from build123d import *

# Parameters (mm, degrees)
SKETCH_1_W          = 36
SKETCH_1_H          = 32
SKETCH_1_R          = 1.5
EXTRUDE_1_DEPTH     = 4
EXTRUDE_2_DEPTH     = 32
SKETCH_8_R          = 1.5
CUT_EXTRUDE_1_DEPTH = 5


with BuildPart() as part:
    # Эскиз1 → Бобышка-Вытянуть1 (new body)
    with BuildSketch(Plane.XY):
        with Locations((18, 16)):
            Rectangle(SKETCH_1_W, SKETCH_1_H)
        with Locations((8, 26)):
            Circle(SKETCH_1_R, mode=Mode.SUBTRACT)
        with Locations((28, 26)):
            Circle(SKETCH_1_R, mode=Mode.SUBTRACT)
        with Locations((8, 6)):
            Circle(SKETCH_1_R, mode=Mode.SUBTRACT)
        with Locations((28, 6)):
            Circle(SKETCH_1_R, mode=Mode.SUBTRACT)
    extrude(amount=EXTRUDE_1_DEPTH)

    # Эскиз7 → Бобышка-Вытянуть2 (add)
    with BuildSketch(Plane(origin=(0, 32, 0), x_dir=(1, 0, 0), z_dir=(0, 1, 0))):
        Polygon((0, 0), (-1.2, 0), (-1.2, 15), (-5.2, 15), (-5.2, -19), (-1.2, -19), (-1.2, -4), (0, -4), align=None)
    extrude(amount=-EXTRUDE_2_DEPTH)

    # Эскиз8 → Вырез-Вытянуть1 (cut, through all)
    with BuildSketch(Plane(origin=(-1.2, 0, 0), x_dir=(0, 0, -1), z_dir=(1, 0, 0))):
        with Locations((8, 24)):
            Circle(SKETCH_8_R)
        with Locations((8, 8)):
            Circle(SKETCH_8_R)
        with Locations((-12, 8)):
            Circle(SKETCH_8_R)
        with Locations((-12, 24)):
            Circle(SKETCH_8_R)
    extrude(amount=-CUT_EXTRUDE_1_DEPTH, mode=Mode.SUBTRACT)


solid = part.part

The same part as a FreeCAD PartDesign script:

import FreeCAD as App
import Part
import Sketcher

V = App.Vector
Q = App.Units.Quantity


def add_polygon(sketch, points):
    """Adds a closed chain of lines whose ends are joined by coincident constraints."""
    first, n = sketch.GeometryCount, len(points)
    for a, b in zip(points, points[1:] + points[:1]):
        sketch.addGeometry(Part.LineSegment(App.Vector(*a, 0), App.Vector(*b, 0)), False)
    for i in range(n):
        sketch.addConstraint(Sketcher.Constraint("Coincident", first + i, 2, first + (i + 1) % n, 1))

doc = App.newDocument("Part")
body = doc.addObject("PartDesign::Body", "Body")

# Sketch on XY plane
sketch1 = doc.addObject("Sketcher::SketchObject", "Sketch")
body.addObject(sketch1)
sketch1.AttachmentSupport = (doc.XY_Plane, [""])
sketch1.MapMode = "FlatFace"
add_polygon(sketch1, [(0, 32), (0, 0), (36, 0), (36, 32)])  # lines 0-3
sketch1.addGeometry(Part.Circle(V(8, 6, 0), V(0, 0, 1), 1.5), False)  # 4
sketch1.addGeometry(Part.Circle(V(28, 6, 0), V(0, 0, 1), 1.5), False)  # 5
sketch1.addGeometry(Part.Circle(V(8, 26, 0), V(0, 0, 1), 1.5), False)  # 6
sketch1.addGeometry(Part.Circle(V(28, 26, 0), V(0, 0, 1), 1.5), False)  # 7
sketch1.addConstraint([
    Sketcher.Constraint("Vertical", 0),
    Sketcher.Constraint("Horizontal", 1),
    Sketcher.Constraint("Vertical", 2),
    Sketcher.Constraint("Horizontal", 3),
    Sketcher.Constraint("Coincident", 0, 2, -1, 1),
    Sketcher.Constraint("Equal", 4, 5),
    Sketcher.Constraint("Equal", 5, 6),
    Sketcher.Constraint("Equal", 6, 7),
    Sketcher.Constraint("Horizontal", 4, 3, 5, 3),
    Sketcher.Constraint("Horizontal", 6, 3, 7, 3),
    Sketcher.Constraint("Vertical", 4, 3, 6, 3),
    Sketcher.Constraint("Vertical", 5, 3, 7, 3),
    Sketcher.Constraint("Diameter", 4, Q("3 mm")),
    Sketcher.Constraint("DistanceX", 1, 1, 1, 2, Q("36 mm")),
    Sketcher.Constraint("DistanceY", 0, 2, 0, 1, Q("32 mm")),
    Sketcher.Constraint("DistanceX", -1, 1, 4, 3, Q("8 mm")),
    Sketcher.Constraint("DistanceY", -1, 1, 4, 3, Q("6 mm")),
    Sketcher.Constraint("DistanceX", -1, 1, 5, 3, Q("28 mm")),
    Sketcher.Constraint("DistanceY", -1, 1, 6, 3, Q("26 mm")),
])
pad1 = doc.addObject("PartDesign::Pad", "Pad")
body.addObject(pad1)
pad1.Profile = sketch1
pad1.Length = 4

# Sketch on XZ plane
sketch2 = doc.addObject("Sketcher::SketchObject", "Sketch001")
body.addObject(sketch2)
sketch2.AttachmentSupport = (doc.XZ_Plane, [""])
sketch2.MapMode = "FlatFace"
sketch2.AttachmentOffset = App.Placement(V(0, 0, -32), App.Rotation())
add_polygon(sketch2, [(0, 0), (-1.2, 0), (-1.2, -15), (-5.2, -15), (-5.2, 19), (-1.2, 19), (-1.2, 4), (0, 4)])  # lines 0-7
sketch2.addConstraint([
    Sketcher.Constraint("Horizontal", 0),
    Sketcher.Constraint("Vertical", 1),
    Sketcher.Constraint("Horizontal", 2),
    Sketcher.Constraint("Vertical", 3),
    Sketcher.Constraint("Horizontal", 4),
    Sketcher.Constraint("Vertical", 5),
    Sketcher.Constraint("Horizontal", 6),
    Sketcher.Constraint("Vertical", 7),
    Sketcher.Constraint("Coincident", 7, 2, -1, 1),
    Sketcher.Constraint("Vertical", 1, 2, 4, 2),
    Sketcher.Constraint("Equal", 1, 5),
    Sketcher.Constraint("Equal", 4, 7),
    Sketcher.Constraint("DistanceX", 2, 2, 2, 1, Q("4 mm")),
    Sketcher.Constraint("DistanceY", 1, 2, 1, 1, Q("15 mm")),
    Sketcher.Constraint("DistanceX", 0, 2, 0, 1, Q("1.2 mm")),
])
pad2 = doc.addObject("PartDesign::Pad", "Pad001")
body.addObject(pad2)
pad2.Profile = sketch2
pad2.Length = 32

# Sketch on YZ plane
sketch3 = doc.addObject("Sketcher::SketchObject", "Sketch002")
body.addObject(sketch3)
sketch3.AttachmentSupport = (doc.YZ_Plane, [""])
sketch3.MapMode = "FlatFace"
sketch3.AttachmentOffset = App.Placement(V(0, 0, -1.2), App.Rotation())
sketch3.addGeometry([
    Part.Circle(V(24, -8, 0), V(0, 0, 1), 1.5),
    Part.Circle(V(8, -8, 0), V(0, 0, 1), 1.5),
    Part.Circle(V(8, 12, 0), V(0, 0, 1), 1.5),
    Part.Circle(V(24, 12, 0), V(0, 0, 1), 1.5),
], False)
sketch3.addConstraint([
    Sketcher.Constraint("Equal", 0, 1),
    Sketcher.Constraint("Equal", 1, 2),
    Sketcher.Constraint("Equal", 2, 3),
    Sketcher.Constraint("Horizontal", 0, 3, 1, 3),
    Sketcher.Constraint("Horizontal", 2, 3, 3, 3),
    Sketcher.Constraint("Vertical", 1, 3, 2, 3),
    Sketcher.Constraint("Vertical", 0, 3, 3, 3),
    Sketcher.Constraint("Diameter", 0, Q("3 mm")),
    Sketcher.Constraint("DistanceX", -1, 1, 0, 3, Q("24 mm")),
    Sketcher.Constraint("DistanceY", 0, 3, -1, 1, Q("8 mm")),
    Sketcher.Constraint("DistanceX", -1, 1, 1, 3, Q("8 mm")),
    Sketcher.Constraint("DistanceY", -1, 1, 2, 3, Q("12 mm")),
])
pocket1 = doc.addObject("PartDesign::Pocket", "Pocket")
body.addObject(pocket1)
pocket1.Profile = sketch3
pocket1.Type = "ThroughAll"

doc.recompute()
